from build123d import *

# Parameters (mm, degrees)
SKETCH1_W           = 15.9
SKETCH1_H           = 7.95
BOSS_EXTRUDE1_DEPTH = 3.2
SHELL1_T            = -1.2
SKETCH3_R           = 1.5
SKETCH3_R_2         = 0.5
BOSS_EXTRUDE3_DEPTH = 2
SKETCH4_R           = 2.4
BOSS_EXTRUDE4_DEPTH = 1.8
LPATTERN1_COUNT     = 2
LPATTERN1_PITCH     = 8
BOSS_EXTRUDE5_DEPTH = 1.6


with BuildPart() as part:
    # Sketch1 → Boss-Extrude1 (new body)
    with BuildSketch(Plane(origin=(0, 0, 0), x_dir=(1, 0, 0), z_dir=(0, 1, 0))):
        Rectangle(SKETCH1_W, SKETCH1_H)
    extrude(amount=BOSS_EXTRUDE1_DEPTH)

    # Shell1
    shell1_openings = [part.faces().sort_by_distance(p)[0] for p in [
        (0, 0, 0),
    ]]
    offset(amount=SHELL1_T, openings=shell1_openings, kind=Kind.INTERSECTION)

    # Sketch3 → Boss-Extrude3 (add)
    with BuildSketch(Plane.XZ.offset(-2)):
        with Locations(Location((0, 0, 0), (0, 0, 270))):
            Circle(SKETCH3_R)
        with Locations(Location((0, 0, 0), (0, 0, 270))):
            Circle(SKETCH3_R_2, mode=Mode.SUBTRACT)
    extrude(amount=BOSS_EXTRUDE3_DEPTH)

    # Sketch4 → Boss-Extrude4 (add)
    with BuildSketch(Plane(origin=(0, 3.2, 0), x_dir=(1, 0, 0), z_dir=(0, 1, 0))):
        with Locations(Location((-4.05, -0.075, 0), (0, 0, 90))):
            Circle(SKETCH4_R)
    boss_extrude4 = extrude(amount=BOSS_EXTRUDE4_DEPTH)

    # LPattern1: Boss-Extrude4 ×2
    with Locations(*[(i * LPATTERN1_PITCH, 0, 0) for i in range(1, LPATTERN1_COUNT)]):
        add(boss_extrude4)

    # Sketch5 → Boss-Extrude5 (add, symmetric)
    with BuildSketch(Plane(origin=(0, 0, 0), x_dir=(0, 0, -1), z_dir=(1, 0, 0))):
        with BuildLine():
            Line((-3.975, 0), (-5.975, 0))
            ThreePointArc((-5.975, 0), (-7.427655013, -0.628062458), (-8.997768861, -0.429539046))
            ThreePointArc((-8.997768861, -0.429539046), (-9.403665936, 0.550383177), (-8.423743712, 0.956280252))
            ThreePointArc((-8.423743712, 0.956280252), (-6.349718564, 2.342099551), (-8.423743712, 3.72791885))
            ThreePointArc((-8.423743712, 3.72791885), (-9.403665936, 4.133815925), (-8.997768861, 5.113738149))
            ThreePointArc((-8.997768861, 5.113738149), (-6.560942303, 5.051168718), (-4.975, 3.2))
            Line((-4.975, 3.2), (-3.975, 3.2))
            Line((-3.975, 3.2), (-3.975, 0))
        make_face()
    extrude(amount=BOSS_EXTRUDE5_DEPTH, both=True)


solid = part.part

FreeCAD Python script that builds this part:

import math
import FreeCAD as App
import Part
import Sketcher
from FreeCAD import Vector


def faces_at(feature, points):
    """Names of the faces that lie closest to the given points."""
    faces = feature.Shape.Faces
    near = lambda p: min(range(len(faces)), key=lambda i: faces[i].distToShape(Part.Vertex(*p))[0])
    return sorted({f"Face{near(p) + 1}" for p in points})


def add_polygon(sketch, points):
    """Adds a closed chain of lines whose ends are joined by coincident constraints."""
    first, n = sketch.GeometryCount, len(points)
    for a, b in zip(points, points[1:] + points[:1]):
        sketch.addGeometry(Part.LineSegment(App.Vector(*a, 0), App.Vector(*b, 0)), False)
    for i in range(n):
        sketch.addConstraint(Sketcher.Constraint("Coincident", first + i, 2, first + (i + 1) % n, 1))

doc = App.newDocument("Part")
body = doc.addObject("PartDesign::Body", "Body")

sketch1 = body.newObject("Sketcher::SketchObject", "Sketch")
sketch1.AttachmentSupport = (doc.getObject("XZ_Plane"), [""])
sketch1.MapMode = "FlatFace"
add_polygon(sketch1, [(-8, -4), (-8, 4), (8, 4), (8, -4)])
sketch1.addConstraint([
    Sketcher.Constraint("Vertical", 0),
    Sketcher.Constraint("Horizontal", 1),
    Sketcher.Constraint("Vertical", 2),
    Sketcher.Constraint("Horizontal", 3),
    Sketcher.Constraint("Symmetric", 0, 2, 2, 2, -1, 1),
    Sketcher.Constraint("DistanceX", 1, 1, 1, 2, 15.9),
    Sketcher.Constraint("DistanceY", 0, 1, 0, 2, 7.95),
])
pad1 = body.newObject("PartDesign::Pad", "Pad")
pad1.Profile = sketch1
pad1.Length = 3.2
pad1.Reversed = True
doc.recompute()

thickness = body.newObject("PartDesign::Thickness", "Thickness")
thickness.Base = (pad1, faces_at(pad1, [(0, 0, 0)]))
thickness.Value = 1.2
thickness.Reversed = True
thickness.Join = "Intersection"

sketch2 = body.newObject("Sketcher::SketchObject", "Sketch001")
sketch2.AttachmentSupport = (doc.getObject("XZ_Plane"), [""])
sketch2.MapMode = "FlatFace"
sketch2.AttachmentOffset = App.Placement(Vector(0, 0, -2), App.Rotation())
sketch2.addGeometry([
    Part.Circle(Vector(0, 0, 0), Vector(0, 0, 1), 1.5),
    Part.Circle(Vector(0, 0, 0), Vector(0, 0, 1), 0.5),
], False)
sketch2.addConstraint([
    Sketcher.Constraint("Coincident", 0, 3, -1, 1),
    Sketcher.Constraint("Coincident", 1, 3, -1, 1),
    Sketcher.Constraint("Diameter", 0, 3.0),
    Sketcher.Constraint("Diameter", 1, 1.0),
])
pad2 = body.newObject("PartDesign::Pad", "Pad001")
pad2.Profile = sketch2
pad2.Length = 2

sketch3 = body.newObject("Sketcher::SketchObject", "Sketch002")
sketch3.AttachmentSupport = (doc.getObject("XZ_Plane"), [""])
sketch3.MapMode = "FlatFace"
sketch3.AttachmentOffset = App.Placement(Vector(0, 0, -3.2), App.Rotation())
sketch3.addGeometry(Part.Circle(Vector(-4, 0.1, 0), Vector(0, 0, 1), 2.4), False)
sketch3.addConstraint([
    Sketcher.Constraint("Diameter", 0, 4.8),
    Sketcher.Constraint("DistanceX", 0, 3, -1, 1, 4.05),
    Sketcher.Constraint("DistanceY", -1, 1, 0, 3, 0.075),
])
pad3 = body.newObject("PartDesign::Pad", "Pad002")
pad3.Profile = sketch3
pad3.Length = 1.8
pad3.Reversed = True
doc.recompute()

linearpattern = body.newObject("PartDesign::LinearPattern", "LinearPattern")
linearpattern.Originals = [pad3]
linearpattern.Direction = (doc.getObject("X_Axis"), [""])
linearpattern.Mode = "offset"
linearpattern.Offset = 8
linearpattern.Occurrences = 2
body.Tip = linearpattern

sketch4 = body.newObject("Sketcher::SketchObject", "Sketch003")
sketch4.AttachmentSupport = (doc.getObject("YZ_Plane"), [""])
sketch4.MapMode = "FlatFace"
sketch4.addGeometry([
    Part.LineSegment(Vector(0, 6, 0), Vector(0, 4, 0)),
    Part.LineSegment(Vector(0, 4, 0), Vector(3.2, 4, 0)),
    Part.LineSegment(Vector(3.2, 4, 0), Vector(3.2, 5, 0)),
    Part.ArcOfCircle(Part.Circle(Vector(2.3, 7.8, 0), Vector(0, 0, 1), 3), math.radians(-73), math.radians(22)),
    Part.ArcOfCircle(Part.Circle(Vector(4.4, 8.7, 0), Vector(0, 0, 1), 0.8), math.radians(23), math.radians(202)),
    Part.ArcOfCircle(Part.Circle(Vector(2.3, 7.8, 0), Vector(0, 0, 1), 1.5), math.radians(158), math.radians(382)),
    Part.ArcOfCircle(Part.Circle(Vector(0.3, 8.7, 0), Vector(0, 0, 1), 0.8), math.radians(-23), math.radians(158)),
    Part.ArcOfCircle(Part.Circle(Vector(2.3, 7.8, 0), Vector(0, 0, 1), 3), math.radians(157), math.radians(219)),
], False)
sketch4.addConstraint([
    Sketcher.Constraint("Coincident", 0, 2, 1, 1),
    Sketcher.Constraint("Coincident", 1, 2, 2, 1),
    Sketcher.Constraint("Coincident", 2, 2, 3, 1),
    Sketcher.Constraint("Tangent", 3, 2, 4, 1),
    Sketcher.Constraint("Tangent", 4, 2, 5, 2),
    Sketcher.Constraint("Tangent", 5, 1, 6, 1),
    Sketcher.Constraint("Tangent", 6, 2, 7, 1),
    Sketcher.Constraint("Coincident", 7, 2, 0, 1),
    Sketcher.Constraint("Vertical", 0),
    Sketcher.Constraint("Horizontal", 1),
    Sketcher.Constraint("Vertical", 2),
    Sketcher.Constraint("Coincident", 5, 3, 3, 3),
    Sketcher.Constraint("Coincident", 7, 3, 3, 3),
    Sketcher.Constraint("Equal", 4, 6),
    Sketcher.Constraint("PointOnObject", 0, 2, -2),
    Sketcher.Constraint("Horizontal", 4, 3, 6, 3),
    Sketcher.Constraint("Radius", 3, 3.0),
    Sketcher.Constraint("Radius", 5, 1.5),
    Sketcher.Constraint("DistanceY", 0, 2, 0, 1, 2.0),
    Sketcher.Constraint("DistanceY", 2, 1, 2, 2, 1.0),
    Sketcher.Constraint("DistanceX", 1, 1, 1, 2, 3.2),
    Sketcher.Constraint("DistanceY", -1, 1, 0, 2, 3.975),
    Sketcher.Constraint("DistanceX", -1, 1, 4, 3, 4.420828),
])
pad4 = body.newObject("PartDesign::Pad", "Pad003")
pad4.Profile = sketch4
pad4.Length = 3.2
pad4.Midplane = True

doc.recompute()
